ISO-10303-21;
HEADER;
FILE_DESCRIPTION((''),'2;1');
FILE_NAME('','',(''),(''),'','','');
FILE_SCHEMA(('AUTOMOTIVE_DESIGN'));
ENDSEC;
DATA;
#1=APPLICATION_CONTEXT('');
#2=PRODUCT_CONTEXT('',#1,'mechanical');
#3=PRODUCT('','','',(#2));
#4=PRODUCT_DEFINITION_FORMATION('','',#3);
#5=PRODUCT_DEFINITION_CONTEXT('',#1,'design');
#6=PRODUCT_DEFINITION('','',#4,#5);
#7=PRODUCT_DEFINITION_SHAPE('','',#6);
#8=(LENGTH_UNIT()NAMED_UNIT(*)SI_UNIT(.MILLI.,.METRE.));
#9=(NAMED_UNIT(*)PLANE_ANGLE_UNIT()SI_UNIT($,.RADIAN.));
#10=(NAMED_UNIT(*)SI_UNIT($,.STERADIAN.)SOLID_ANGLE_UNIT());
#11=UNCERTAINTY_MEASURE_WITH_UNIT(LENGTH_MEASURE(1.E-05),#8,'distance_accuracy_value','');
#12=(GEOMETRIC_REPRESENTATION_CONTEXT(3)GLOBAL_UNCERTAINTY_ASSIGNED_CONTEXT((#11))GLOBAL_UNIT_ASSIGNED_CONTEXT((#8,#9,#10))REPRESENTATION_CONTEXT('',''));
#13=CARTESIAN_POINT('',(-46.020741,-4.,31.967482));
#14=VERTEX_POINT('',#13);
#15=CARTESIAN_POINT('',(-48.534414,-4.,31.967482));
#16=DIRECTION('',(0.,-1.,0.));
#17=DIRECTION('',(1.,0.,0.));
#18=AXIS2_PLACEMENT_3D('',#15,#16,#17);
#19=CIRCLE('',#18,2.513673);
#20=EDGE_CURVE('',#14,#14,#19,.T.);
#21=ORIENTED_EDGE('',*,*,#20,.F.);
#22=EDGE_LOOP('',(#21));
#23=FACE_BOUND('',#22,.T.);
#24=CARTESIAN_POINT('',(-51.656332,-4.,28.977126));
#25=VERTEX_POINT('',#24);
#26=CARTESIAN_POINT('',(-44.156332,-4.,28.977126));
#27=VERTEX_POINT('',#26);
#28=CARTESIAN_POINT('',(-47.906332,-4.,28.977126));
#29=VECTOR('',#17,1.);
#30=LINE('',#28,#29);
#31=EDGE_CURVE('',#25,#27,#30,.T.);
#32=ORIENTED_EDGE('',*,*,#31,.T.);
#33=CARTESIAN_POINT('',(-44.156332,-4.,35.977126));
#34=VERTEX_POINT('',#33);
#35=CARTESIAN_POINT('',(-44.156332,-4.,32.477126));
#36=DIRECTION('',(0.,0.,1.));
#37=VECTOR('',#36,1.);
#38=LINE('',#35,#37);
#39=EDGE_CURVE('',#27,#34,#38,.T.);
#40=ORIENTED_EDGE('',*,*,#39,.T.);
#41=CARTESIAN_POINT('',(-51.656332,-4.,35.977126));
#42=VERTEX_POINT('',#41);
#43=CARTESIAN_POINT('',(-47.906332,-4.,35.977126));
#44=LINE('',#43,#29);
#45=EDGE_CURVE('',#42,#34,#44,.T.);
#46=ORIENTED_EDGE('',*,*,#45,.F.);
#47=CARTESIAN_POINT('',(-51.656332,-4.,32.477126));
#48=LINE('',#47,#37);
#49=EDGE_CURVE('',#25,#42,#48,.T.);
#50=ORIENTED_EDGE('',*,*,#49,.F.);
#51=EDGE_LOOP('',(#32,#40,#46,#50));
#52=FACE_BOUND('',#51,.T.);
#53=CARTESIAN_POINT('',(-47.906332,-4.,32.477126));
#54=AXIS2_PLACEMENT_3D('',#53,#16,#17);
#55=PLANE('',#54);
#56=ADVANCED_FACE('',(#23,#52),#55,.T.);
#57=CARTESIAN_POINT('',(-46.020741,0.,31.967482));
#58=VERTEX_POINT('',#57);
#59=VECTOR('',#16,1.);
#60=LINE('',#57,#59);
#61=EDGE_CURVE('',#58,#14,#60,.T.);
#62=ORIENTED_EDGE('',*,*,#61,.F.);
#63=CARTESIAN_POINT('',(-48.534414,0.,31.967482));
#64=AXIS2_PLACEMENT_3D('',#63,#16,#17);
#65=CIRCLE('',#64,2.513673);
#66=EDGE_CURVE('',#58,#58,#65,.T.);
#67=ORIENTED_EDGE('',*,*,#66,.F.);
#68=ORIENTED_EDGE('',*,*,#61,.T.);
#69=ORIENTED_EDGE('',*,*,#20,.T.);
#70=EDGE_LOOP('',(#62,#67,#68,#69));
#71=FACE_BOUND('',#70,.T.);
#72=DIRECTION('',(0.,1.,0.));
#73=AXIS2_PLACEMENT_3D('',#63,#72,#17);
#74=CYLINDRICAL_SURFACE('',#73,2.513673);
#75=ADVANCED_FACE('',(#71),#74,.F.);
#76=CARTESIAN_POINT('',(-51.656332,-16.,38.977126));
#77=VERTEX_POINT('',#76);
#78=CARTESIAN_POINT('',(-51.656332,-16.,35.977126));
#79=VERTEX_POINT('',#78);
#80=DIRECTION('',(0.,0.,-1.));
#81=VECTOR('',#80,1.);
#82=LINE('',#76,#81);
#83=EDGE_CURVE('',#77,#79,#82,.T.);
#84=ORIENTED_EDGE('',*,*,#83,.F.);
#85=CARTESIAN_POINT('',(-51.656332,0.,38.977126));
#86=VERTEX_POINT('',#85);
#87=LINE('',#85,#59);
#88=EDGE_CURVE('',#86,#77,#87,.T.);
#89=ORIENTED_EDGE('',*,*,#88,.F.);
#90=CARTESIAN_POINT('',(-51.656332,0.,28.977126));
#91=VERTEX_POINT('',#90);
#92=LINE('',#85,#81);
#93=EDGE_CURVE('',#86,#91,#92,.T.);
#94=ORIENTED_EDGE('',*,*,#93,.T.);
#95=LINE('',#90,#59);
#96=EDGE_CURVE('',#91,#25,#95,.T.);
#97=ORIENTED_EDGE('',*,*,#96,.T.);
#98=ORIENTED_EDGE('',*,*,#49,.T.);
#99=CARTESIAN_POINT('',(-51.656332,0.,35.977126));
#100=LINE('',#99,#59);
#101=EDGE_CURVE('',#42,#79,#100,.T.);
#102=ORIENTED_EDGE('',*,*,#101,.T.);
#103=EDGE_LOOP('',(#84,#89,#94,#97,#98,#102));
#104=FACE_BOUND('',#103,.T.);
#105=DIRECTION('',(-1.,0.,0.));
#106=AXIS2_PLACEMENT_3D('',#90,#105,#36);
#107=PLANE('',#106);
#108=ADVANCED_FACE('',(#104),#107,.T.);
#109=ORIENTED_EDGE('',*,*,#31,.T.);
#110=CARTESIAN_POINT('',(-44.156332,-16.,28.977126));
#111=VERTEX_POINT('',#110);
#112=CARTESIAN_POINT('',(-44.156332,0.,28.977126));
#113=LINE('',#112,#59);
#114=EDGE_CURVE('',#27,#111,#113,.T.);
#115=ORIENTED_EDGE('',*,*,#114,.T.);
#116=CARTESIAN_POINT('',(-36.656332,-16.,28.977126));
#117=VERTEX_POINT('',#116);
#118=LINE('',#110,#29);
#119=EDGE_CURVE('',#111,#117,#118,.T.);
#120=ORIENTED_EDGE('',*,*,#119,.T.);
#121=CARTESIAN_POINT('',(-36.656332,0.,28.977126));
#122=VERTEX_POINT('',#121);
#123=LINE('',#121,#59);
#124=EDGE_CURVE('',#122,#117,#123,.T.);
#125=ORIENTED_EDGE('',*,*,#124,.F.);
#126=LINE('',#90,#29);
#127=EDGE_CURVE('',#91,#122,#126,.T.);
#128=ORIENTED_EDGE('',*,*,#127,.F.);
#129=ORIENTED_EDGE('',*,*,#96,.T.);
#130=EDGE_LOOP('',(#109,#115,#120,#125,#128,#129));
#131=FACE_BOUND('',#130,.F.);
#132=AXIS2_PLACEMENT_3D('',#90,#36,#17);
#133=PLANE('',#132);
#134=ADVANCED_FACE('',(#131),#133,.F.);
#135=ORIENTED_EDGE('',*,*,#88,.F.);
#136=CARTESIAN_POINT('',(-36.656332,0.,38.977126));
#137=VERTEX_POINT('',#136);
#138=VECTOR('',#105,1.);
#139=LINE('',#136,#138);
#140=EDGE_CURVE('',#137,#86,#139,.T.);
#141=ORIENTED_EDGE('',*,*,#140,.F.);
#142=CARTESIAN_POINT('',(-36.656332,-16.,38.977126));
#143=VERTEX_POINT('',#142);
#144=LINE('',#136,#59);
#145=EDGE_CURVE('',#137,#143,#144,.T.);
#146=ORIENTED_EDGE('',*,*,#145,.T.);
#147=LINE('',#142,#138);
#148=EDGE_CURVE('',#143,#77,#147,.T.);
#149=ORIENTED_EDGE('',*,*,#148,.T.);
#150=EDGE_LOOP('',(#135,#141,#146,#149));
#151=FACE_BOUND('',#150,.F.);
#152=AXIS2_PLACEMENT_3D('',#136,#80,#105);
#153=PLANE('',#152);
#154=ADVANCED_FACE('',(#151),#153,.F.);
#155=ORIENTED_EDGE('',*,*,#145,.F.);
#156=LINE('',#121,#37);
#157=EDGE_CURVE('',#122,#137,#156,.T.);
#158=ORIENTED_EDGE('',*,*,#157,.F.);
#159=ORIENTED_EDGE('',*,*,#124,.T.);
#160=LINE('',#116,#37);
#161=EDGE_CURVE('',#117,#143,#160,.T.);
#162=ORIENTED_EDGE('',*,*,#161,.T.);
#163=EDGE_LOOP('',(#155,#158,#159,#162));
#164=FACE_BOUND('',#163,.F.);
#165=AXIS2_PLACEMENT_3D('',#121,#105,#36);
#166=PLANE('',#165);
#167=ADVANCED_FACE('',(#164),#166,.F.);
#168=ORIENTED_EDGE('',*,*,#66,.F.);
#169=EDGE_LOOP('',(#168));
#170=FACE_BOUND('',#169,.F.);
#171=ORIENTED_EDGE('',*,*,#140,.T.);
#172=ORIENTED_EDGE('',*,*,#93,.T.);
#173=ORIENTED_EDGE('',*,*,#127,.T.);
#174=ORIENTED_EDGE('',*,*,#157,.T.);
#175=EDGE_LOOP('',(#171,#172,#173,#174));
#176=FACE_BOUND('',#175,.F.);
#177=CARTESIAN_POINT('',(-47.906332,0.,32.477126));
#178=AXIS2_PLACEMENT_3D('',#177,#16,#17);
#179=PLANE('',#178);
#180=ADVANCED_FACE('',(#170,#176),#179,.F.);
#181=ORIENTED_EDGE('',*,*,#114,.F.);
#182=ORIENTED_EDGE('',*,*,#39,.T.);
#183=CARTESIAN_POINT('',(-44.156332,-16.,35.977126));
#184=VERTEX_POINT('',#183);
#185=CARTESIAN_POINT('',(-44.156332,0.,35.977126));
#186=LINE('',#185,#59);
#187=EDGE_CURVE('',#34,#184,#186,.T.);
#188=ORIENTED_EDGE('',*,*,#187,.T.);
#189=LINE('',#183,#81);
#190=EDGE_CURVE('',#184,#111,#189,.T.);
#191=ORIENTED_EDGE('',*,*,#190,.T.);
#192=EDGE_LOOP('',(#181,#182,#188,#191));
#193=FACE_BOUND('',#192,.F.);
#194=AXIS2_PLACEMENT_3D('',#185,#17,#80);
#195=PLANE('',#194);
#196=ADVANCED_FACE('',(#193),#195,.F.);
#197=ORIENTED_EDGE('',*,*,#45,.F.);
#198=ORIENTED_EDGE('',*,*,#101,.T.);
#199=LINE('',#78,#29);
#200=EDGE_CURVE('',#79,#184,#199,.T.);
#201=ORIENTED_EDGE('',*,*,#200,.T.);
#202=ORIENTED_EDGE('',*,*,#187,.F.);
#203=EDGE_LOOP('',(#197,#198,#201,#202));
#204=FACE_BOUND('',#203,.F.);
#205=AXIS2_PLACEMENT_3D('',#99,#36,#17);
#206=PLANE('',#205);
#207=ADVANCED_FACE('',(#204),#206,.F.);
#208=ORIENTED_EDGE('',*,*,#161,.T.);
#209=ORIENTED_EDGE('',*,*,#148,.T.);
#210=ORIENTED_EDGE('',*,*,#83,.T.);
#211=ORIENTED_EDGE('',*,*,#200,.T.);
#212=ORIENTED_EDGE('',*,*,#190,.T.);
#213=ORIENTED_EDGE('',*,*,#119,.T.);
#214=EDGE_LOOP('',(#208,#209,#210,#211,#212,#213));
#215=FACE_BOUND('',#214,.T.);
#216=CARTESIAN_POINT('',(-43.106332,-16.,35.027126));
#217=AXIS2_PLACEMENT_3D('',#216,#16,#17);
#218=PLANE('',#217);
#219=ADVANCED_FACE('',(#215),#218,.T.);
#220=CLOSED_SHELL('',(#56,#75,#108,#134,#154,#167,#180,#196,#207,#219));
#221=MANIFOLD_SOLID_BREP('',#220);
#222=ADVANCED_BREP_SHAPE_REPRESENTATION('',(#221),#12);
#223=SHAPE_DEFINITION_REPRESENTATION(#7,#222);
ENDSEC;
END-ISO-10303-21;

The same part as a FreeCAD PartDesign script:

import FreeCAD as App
import Part
import Sketcher
from FreeCAD import Vector


def add_polygon(sketch, points):
    """Adds a closed chain of lines whose ends are joined by coincident constraints."""
    first, n = sketch.GeometryCount, len(points)
    for a, b in zip(points, points[1:] + points[:1]):
        sketch.addGeometry(Part.LineSegment(App.Vector(*a, 0), App.Vector(*b, 0)), False)
    for i in range(n):
        sketch.addConstraint(Sketcher.Constraint("Coincident", first + i, 2, first + (i + 1) % n, 1))

doc = App.newDocument("Part")
body = doc.addObject("PartDesign::Body", "Body")

sketch1 = body.newObject("Sketcher::SketchObject", "Sketch")
sketch1.AttachmentSupport = (doc.getObject("XZ_Plane"), [""])
sketch1.MapMode = "FlatFace"
add_polygon(sketch1, [(-36.7, 39), (-51.7, 39), (-51.7, 36), (-44.2, 36), (-44.2, 29), (-36.7, 29)])
sketch1.addConstraint([
    Sketcher.Constraint("Horizontal", 0),
    Sketcher.Constraint("Vertical", 1),
    Sketcher.Constraint("Horizontal", 2),
    Sketcher.Constraint("Vertical", 3),
    Sketcher.Constraint("Horizontal", 4),
    Sketcher.Constraint("Vertical", 5),
    Sketcher.Constraint("Equal", 2, 4),
    Sketcher.Constraint("DistanceX", 0, 2, 0, 1, 15.0),
    Sketcher.Constraint("DistanceY", 1, 2, 1, 1, 3.0),
    Sketcher.Constraint("DistanceY", 3, 2, 3, 1, 7.0),
    Sketcher.Constraint("DistanceX", 0, 2, -1, 1, 51.656332),
    Sketcher.Constraint("DistanceY", -1, 1, 0, 2, 38.977126),
])
pad1 = body.newObject("PartDesign::Pad", "Pad")
pad1.Profile = sketch1
pad1.Length = 16

sketch2 = body.newObject("Sketcher::SketchObject", "Sketch001")
sketch2.AttachmentSupport = (doc.getObject("XZ_Plane"), [""])
sketch2.MapMode = "FlatFace"
add_polygon(sketch2, [(-51.7, 36), (-51.7, 29), (-44.2, 29), (-44.2, 36)])
sketch2.addGeometry(Part.Circle(Vector(-48.5, 32, 0), Vector(0, 0, 1), 2.5), False)
sketch2.addConstraint([
    Sketcher.Constraint("Vertical", 0),
    Sketcher.Constraint("Horizontal", 1),
    Sketcher.Constraint("Vertical", 2),
    Sketcher.Constraint("Horizontal", 3),
    Sketcher.Constraint("DistanceY", 0, 2, 0, 1, 7.0),
    Sketcher.Constraint("DistanceX", 1, 1, 1, 2, 7.5),
    Sketcher.Constraint("Diameter", 4, 5.027346),
    Sketcher.Constraint("DistanceX", 0, 2, 4, 3, 3.121918),
    Sketcher.Constraint("DistanceX", 4, 3, -1, 1, 48.534414),
    Sketcher.Constraint("DistanceY", -1, 1, 4, 3, 31.967482),
    Sketcher.Constraint("DistanceY", -1, 1, 0, 2, 28.977126),
])
pad2 = body.newObject("PartDesign::Pad", "Pad001")
pad2.Profile = sketch2
pad2.Length = 4

doc.recompute()
